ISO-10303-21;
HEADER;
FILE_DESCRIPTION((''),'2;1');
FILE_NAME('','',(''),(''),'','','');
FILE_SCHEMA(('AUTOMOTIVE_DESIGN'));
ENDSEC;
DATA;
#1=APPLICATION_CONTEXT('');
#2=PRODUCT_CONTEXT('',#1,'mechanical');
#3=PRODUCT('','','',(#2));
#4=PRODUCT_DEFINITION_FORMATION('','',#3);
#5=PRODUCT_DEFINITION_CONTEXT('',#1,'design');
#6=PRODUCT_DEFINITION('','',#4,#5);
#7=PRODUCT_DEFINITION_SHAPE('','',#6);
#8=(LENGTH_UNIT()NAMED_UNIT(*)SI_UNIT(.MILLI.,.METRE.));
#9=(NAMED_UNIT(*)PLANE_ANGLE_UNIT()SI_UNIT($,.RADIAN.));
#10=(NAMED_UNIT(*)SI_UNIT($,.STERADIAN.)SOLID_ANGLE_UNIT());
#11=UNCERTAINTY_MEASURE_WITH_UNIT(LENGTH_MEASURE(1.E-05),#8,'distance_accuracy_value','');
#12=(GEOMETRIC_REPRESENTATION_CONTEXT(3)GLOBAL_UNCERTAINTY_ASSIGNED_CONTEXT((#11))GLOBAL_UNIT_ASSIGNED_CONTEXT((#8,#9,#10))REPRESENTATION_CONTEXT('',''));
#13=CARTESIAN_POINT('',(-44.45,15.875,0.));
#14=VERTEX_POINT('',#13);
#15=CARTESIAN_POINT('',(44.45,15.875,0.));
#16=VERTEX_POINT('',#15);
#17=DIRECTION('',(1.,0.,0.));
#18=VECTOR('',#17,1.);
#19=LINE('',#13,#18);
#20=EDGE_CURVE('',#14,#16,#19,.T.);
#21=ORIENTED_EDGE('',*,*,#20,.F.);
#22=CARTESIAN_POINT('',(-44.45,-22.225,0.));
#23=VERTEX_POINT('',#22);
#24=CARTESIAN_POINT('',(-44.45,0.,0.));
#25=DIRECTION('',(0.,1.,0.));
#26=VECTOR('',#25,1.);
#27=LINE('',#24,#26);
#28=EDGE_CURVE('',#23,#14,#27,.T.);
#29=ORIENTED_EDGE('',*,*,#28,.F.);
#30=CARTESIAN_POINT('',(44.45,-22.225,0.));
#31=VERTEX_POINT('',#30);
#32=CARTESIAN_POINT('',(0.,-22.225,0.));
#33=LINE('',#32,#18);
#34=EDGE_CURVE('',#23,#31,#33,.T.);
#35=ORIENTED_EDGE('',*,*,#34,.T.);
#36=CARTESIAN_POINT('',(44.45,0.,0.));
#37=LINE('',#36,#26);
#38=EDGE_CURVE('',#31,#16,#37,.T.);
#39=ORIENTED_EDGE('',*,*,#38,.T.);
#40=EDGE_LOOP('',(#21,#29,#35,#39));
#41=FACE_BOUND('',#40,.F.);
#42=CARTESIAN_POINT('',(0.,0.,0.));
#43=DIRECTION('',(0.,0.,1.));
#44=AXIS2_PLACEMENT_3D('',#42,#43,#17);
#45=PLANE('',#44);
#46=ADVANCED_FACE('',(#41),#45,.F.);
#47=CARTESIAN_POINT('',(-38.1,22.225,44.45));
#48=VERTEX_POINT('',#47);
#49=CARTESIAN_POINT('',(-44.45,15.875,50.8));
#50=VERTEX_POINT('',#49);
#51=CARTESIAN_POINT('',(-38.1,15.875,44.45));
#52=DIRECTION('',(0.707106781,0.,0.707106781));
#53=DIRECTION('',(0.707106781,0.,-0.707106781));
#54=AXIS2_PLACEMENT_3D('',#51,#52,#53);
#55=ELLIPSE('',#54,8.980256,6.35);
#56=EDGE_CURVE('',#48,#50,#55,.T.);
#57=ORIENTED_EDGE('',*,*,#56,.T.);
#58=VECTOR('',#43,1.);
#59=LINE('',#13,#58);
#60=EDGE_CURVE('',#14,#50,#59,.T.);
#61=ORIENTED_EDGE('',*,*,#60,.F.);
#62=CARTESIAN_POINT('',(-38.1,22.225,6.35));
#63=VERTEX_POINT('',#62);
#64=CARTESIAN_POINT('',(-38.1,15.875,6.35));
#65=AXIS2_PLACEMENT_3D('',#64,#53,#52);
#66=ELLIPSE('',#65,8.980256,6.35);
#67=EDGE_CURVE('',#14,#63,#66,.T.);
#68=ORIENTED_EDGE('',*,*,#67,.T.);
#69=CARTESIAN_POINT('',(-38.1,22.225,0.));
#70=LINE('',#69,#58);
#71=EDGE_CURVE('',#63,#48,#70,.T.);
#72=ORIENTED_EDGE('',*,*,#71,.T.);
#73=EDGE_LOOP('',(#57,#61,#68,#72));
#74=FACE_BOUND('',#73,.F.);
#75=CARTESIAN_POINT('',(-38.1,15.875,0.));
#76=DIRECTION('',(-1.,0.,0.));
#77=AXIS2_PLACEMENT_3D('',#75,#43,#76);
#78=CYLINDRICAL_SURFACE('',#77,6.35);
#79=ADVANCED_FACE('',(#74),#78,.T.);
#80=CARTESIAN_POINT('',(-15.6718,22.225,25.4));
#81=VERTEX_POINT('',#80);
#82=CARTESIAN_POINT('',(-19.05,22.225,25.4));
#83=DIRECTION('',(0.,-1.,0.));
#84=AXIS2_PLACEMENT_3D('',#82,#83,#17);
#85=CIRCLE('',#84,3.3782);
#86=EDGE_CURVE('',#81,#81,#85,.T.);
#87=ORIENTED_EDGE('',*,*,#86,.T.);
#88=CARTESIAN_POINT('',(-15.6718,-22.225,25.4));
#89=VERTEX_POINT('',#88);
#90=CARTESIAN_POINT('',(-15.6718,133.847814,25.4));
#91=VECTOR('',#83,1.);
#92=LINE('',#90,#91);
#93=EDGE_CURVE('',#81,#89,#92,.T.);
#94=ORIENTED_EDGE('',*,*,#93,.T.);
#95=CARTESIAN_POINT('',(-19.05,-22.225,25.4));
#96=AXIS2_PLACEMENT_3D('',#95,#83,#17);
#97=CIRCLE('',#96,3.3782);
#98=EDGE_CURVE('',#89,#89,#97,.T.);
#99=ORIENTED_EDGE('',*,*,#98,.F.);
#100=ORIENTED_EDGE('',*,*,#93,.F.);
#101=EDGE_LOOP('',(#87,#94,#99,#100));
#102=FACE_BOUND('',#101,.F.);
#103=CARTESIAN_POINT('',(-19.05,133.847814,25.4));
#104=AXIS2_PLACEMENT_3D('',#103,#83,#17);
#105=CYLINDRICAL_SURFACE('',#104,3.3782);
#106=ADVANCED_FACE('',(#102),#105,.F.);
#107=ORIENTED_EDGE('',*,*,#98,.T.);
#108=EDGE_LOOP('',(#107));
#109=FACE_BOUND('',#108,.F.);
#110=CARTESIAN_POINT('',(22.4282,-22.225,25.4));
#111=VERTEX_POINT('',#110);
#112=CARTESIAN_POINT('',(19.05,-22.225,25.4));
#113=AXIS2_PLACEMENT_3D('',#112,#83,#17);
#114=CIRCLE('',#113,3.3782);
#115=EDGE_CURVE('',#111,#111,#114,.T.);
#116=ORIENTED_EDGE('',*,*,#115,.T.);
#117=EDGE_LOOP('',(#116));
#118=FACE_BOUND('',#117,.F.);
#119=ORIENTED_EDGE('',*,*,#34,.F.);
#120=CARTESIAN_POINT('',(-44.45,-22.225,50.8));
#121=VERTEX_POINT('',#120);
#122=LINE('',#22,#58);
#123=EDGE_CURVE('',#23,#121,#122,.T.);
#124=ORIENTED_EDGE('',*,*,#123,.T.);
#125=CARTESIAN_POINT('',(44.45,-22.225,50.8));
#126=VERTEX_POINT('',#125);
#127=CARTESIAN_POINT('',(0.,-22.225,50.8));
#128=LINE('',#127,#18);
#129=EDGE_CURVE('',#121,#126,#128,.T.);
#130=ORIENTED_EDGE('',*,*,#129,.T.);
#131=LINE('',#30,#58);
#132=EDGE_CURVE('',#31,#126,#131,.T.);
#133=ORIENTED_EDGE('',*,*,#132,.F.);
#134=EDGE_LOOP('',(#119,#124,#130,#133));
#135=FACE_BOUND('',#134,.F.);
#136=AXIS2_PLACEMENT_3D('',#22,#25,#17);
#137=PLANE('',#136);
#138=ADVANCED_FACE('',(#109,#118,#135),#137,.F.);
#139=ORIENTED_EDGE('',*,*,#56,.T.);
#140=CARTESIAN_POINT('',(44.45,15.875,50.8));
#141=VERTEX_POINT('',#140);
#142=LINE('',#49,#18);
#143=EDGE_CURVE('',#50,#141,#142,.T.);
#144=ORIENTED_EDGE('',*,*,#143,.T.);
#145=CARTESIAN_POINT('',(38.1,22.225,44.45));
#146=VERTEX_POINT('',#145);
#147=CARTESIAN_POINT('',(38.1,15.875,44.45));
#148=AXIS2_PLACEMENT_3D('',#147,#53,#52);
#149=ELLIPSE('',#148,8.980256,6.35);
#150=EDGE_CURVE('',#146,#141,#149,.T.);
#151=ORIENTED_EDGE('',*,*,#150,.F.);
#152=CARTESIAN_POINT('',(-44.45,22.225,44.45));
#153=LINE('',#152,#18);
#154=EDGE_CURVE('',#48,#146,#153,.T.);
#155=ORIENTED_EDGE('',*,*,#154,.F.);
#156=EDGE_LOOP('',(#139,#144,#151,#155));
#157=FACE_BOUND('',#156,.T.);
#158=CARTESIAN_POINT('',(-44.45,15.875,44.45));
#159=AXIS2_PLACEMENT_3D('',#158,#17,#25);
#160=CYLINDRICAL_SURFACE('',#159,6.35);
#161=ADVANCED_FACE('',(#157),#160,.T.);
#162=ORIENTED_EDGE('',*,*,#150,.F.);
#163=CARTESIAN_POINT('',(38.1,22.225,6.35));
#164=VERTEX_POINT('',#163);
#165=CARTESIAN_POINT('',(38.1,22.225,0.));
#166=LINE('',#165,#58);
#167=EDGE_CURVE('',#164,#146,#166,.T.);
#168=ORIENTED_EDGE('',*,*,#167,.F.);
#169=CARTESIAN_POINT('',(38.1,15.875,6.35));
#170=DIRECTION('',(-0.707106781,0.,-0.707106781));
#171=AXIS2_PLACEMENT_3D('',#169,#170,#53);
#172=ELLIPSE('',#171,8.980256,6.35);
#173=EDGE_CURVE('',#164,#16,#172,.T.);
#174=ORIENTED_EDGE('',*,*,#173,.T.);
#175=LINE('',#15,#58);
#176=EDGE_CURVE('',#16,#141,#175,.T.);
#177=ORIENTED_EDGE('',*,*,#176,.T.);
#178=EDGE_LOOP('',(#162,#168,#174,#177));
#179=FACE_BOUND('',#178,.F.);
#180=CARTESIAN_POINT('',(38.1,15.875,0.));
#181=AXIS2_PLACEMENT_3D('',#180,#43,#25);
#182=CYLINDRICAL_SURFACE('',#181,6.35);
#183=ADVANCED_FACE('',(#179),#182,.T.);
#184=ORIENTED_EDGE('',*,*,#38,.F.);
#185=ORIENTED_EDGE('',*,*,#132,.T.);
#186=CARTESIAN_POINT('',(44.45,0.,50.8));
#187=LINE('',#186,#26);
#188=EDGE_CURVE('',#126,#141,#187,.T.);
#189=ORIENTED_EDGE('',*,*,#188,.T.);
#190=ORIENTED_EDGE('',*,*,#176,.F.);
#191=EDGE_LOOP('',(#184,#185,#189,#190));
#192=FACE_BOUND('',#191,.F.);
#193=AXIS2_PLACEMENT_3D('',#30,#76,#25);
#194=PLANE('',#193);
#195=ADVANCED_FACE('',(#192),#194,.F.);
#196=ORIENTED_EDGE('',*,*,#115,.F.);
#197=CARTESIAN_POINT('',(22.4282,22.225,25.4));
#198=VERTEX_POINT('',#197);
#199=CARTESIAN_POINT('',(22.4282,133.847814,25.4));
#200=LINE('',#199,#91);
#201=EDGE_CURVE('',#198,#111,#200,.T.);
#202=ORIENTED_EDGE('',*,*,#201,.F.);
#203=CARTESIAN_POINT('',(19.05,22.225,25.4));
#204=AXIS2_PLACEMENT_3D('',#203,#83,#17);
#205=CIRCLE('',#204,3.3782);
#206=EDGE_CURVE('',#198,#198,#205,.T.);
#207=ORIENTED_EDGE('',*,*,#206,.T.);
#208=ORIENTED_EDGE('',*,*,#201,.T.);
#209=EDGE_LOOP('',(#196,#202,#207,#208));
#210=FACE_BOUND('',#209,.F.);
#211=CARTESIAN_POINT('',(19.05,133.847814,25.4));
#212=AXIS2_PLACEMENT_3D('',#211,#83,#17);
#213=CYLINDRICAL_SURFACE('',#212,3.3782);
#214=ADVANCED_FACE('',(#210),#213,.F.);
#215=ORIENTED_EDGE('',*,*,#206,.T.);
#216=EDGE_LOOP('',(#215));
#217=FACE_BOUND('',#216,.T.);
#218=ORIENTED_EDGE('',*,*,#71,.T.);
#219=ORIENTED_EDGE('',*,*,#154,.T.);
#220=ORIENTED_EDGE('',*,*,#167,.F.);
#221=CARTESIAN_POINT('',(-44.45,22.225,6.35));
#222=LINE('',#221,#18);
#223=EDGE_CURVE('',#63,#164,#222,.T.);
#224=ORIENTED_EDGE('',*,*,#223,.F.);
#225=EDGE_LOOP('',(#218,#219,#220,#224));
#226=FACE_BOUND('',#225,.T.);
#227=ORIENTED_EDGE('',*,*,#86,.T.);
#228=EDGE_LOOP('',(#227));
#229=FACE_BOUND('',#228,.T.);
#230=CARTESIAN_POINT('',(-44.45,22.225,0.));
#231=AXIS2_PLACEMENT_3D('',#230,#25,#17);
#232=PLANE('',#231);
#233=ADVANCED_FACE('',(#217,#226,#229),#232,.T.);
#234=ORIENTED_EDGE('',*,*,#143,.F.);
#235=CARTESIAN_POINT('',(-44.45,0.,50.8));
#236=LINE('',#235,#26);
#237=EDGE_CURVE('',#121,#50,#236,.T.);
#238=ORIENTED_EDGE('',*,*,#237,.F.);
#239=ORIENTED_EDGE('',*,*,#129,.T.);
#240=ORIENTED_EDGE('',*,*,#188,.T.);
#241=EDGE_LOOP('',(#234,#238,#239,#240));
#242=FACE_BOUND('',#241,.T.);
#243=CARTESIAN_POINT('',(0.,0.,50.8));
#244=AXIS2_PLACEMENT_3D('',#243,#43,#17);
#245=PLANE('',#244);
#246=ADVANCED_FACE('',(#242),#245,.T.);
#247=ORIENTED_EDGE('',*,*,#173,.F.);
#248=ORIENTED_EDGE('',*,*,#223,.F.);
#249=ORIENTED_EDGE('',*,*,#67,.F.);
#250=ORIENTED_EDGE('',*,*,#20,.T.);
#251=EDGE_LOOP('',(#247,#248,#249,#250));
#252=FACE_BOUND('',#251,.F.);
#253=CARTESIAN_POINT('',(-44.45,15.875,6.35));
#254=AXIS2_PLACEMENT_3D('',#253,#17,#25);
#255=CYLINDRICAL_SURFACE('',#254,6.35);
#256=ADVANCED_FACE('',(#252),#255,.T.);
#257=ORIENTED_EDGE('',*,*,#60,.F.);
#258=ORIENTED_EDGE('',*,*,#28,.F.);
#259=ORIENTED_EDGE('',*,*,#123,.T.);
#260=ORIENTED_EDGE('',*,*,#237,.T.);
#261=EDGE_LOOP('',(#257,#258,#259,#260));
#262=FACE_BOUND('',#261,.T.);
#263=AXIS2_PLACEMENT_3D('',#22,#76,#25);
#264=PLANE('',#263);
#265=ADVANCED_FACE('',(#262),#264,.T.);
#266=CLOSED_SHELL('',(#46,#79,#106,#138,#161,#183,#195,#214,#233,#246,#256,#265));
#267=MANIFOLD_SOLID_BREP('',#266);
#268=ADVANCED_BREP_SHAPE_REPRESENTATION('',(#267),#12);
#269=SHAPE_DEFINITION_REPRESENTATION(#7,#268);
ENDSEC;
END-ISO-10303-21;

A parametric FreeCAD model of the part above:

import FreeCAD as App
import Part
import Sketcher

V = App.Vector
Q = App.Units.Quantity


def edges_at(feature, points):
    """Names of the edges that pass closest to the given points."""
    edges = feature.Shape.Edges
    near = lambda p: min(range(len(edges)), key=lambda i: edges[i].distToShape(Part.Vertex(*p))[0])
    return sorted({f"Edge{near(p) + 1}" for p in points})

doc = App.newDocument("Part")
body = doc.addObject("PartDesign::Body", "Body")

sketch1 = body.newObject("Sketcher::SketchObject", "Sketch")
sketch1.AttachmentSupport = (doc.getObject("XY_Plane"), [""])
sketch1.MapMode = "FlatFace"
sketch1.addGeometry(Part.LineSegment(V(-44, 22, 0), V(-44, -22, 0)), False)
sketch1.addGeometry(Part.LineSegment(V(-44, -22, 0), V(44, -22, 0)), False)
sketch1.addGeometry(Part.LineSegment(V(44, -22, 0), V(44, 22, 0)), False)
sketch1.addGeometry(Part.LineSegment(V(44, 22, 0), V(-44, 22, 0)), False)
sketch1.addConstraint(Sketcher.Constraint("Coincident", 0, 2, 1, 1))
sketch1.addConstraint(Sketcher.Constraint("Coincident", 1, 2, 2, 1))
sketch1.addConstraint(Sketcher.Constraint("Coincident", 2, 2, 3, 1))
sketch1.addConstraint(Sketcher.Constraint("Coincident", 3, 2, 0, 1))
sketch1.addConstraint(Sketcher.Constraint("Vertical", 0))
sketch1.addConstraint(Sketcher.Constraint("Horizontal", 1))
sketch1.addConstraint(Sketcher.Constraint("Vertical", 2))
sketch1.addConstraint(Sketcher.Constraint("Horizontal", 3))
sketch1.addConstraint(Sketcher.Constraint("Symmetric", 0, 2, 2, 2, -1, 1))
sketch1.addConstraint(Sketcher.Constraint("DistanceX", 1, 1, 1, 2, Q("3.5 in")))
sketch1.addConstraint(Sketcher.Constraint("DistanceY", 0, 2, 0, 1, Q("1.75 in")))
pad1 = body.newObject("PartDesign::Pad", "Pad")
pad1.Profile = sketch1
pad1.Length = Q("2 in")

sketch2 = body.newObject("Sketcher::SketchObject", "Sketch001")
sketch2.AttachmentSupport = (doc.getObject("XZ_Plane"), [""])
sketch2.MapMode = "FlatFace"
sketch2.AttachmentOffset = App.Placement(V(0, 0, -0.875 * 25.4), App.Rotation())
sketch2.addGeometry(Part.Circle(V(19.1, 25.4, 0), V(0, 0, 1), 3.4), False)
sketch2.addGeometry(Part.Circle(V(-19.1, 25.4, 0), V(0, 0, 1), 3.4), False)
sketch2.addConstraint(Sketcher.Constraint("Equal", 0, 1))
sketch2.addConstraint(Sketcher.Constraint("Symmetric", 0, 3, 1, 3, -2))
sketch2.addConstraint(Sketcher.Constraint("Diameter", 0, Q("0.266 in")))
sketch2.addConstraint(Sketcher.Constraint("DistanceY", -1, 1, 0, 3, Q("1 in")))
sketch2.addConstraint(Sketcher.Constraint("DistanceX", 1, 3, 0, 3, Q("1.5 in")))
doc.recompute()
hole = body.newObject("PartDesign::Hole", "Hole")
hole.Profile = sketch2
hole.ThreadType = "None"
hole.Diameter = Q("0.266 in")
hole.DepthType = "ThroughAll"
hole.Reversed = True
doc.recompute()

fillet = body.newObject("PartDesign::Fillet", "Fillet")
fillet.Base = (hole, edges_at(hole, [
    (0, 22.225, 50.8),
    (-44.45, 22.225, 25.4),
    (0, 22.225, 0),
    (44.45, 22.225, 25.4),
]))
fillet.Radius = Q("0.25 in")

doc.recompute()
